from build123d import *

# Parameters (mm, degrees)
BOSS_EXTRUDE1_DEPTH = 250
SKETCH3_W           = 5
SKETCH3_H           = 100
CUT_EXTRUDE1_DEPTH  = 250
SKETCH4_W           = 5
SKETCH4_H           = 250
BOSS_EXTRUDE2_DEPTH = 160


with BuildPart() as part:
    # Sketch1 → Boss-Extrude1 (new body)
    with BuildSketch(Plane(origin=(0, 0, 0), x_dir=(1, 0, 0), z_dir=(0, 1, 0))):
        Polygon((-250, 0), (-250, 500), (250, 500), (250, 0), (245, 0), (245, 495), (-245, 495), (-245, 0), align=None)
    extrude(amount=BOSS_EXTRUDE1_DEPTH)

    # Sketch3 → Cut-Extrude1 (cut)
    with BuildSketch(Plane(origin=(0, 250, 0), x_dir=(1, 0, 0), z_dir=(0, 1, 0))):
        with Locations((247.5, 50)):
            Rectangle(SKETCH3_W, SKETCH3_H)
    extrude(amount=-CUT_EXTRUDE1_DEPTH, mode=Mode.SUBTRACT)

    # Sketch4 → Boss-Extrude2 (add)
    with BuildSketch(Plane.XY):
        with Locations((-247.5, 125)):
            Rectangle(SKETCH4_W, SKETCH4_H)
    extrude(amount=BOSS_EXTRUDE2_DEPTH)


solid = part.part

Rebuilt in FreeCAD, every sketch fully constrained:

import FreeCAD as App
import Part
import Sketcher
from FreeCAD import Vector
Q = App.Units.Quantity

doc = App.newDocument("Part")
params = doc.addObject("Spreadsheet::Sheet", "Params")
for row, (alias, value) in enumerate([
    ("sketch1_width", "5 mm"),
    ("sketch1_width2", "490 mm"),
    ("sketch1_height", "495 mm"),
    ("pad1_length", "250 mm"),
    ("sketch2_width", "5 mm"),
    ("sketch2_height", "100 mm"),
    ("pocket1_length", "250 mm"),
    ("sketch3_width", "5 mm"),
    ("sketch3_height", "250 mm"),
    ("pad2_length", "160 mm"),
], start=1):
    params.set(f"A{row}", alias)
    params.set(f"B{row}", "=" + value)
    params.setAlias(f"B{row}", alias)

body = doc.addObject("PartDesign::Body", "Body")

sketch1 = doc.addObject("Sketcher::SketchObject", "Sketch")
body.addObject(sketch1)
sketch1.AttachmentSupport = (doc.XZ_Plane, [""])
sketch1.MapMode = "FlatFace"
sketch1.addGeometry([
    Part.LineSegment(Vector(-250, -500, 0), Vector(-250, 0, 0)),
    Part.LineSegment(Vector(-250, 0, 0), Vector(-245, 0, 0)),
    Part.LineSegment(Vector(-245, 0, 0), Vector(-245, -495, 0)),
    Part.LineSegment(Vector(-245, -495, 0), Vector(245, -495, 0)),
    Part.LineSegment(Vector(245, -495, 0), Vector(245, 0, 0)),
    Part.LineSegment(Vector(245, 0, 0), Vector(250, 0, 0)),
    Part.LineSegment(Vector(250, 0, 0), Vector(250, -500, 0)),
    Part.LineSegment(Vector(250, -500, 0), Vector(-250, -500, 0)),
], False)
sketch1.addConstraint([
    Sketcher.Constraint("Coincident", 0, 2, 1, 1),
    Sketcher.Constraint("Coincident", 1, 2, 2, 1),
    Sketcher.Constraint("Coincident", 2, 2, 3, 1),
    Sketcher.Constraint("Coincident", 3, 2, 4, 1),
    Sketcher.Constraint("Coincident", 4, 2, 5, 1),
    Sketcher.Constraint("Coincident", 5, 2, 6, 1),
    Sketcher.Constraint("Coincident", 6, 2, 7, 1),
    Sketcher.Constraint("Coincident", 7, 2, 0, 1),
    Sketcher.Constraint("Vertical", 0),
    Sketcher.Constraint("Horizontal", 1),
    Sketcher.Constraint("Vertical", 2),
    Sketcher.Constraint("Horizontal", 3),
    Sketcher.Constraint("Vertical", 4),
    Sketcher.Constraint("Horizontal", 5),
    Sketcher.Constraint("Vertical", 6),
    Sketcher.Constraint("Horizontal", 7),
    Sketcher.Constraint("Symmetric", 1, 2, 4, 2, -1, 1),
    Sketcher.Constraint("Symmetric", 0, 2, 5, 2, -2),
    Sketcher.Constraint("Equal", 7, 0),
    Sketcher.Constraint("DistanceX", 1, 1, 1, 2, Q("5 mm")),
    Sketcher.Constraint("DistanceX", 3, 1, 3, 2, Q("490 mm")),
    Sketcher.Constraint("DistanceY", 2, 2, 2, 1, Q("495 mm")),
])
sketch1.setExpression("Constraints[19]", "Params.sketch1_width")
sketch1.setExpression("Constraints[20]", "Params.sketch1_width2")
sketch1.setExpression("Constraints[21]", "Params.sketch1_height")
pad1 = doc.addObject("PartDesign::Pad", "Pad")
body.addObject(pad1)
pad1.Profile = sketch1
pad1.setExpression("Length", "Params.pad1_length")
pad1.Reversed = True

sketch2 = doc.addObject("Sketcher::SketchObject", "Sketch001")
body.addObject(sketch2)
sketch2.AttachmentSupport = (doc.XZ_Plane, [""])
sketch2.MapMode = "FlatFace"
sketch2.AttachmentOffset = App.Placement(Vector(0, 0, -250), App.Rotation())
sketch2.addGeometry([
    Part.LineSegment(Vector(245, -100, 0), Vector(245, 0, 0)),
    Part.LineSegment(Vector(245, 0, 0), Vector(250, 0, 0)),
    Part.LineSegment(Vector(250, 0, 0), Vector(250, -100, 0)),
    Part.LineSegment(Vector(250, -100, 0), Vector(245, -100, 0)),
], False)
sketch2.addConstraint([
    Sketcher.Constraint("Coincident", 0, 2, 1, 1),
    Sketcher.Constraint("Coincident", 1, 2, 2, 1),
    Sketcher.Constraint("Coincident", 2, 2, 3, 1),
    Sketcher.Constraint("Coincident", 3, 2, 0, 1),
    Sketcher.Constraint("Vertical", 0),
    Sketcher.Constraint("Horizontal", 1),
    Sketcher.Constraint("Vertical", 2),
    Sketcher.Constraint("Horizontal", 3),
    Sketcher.Constraint("PointOnObject", 0, 2, -1),
    Sketcher.Constraint("DistanceX", 1, 1, 1, 2, Q("5 mm")),
    Sketcher.Constraint("DistanceY", 0, 1, 0, 2, Q("100 mm")),
    Sketcher.Constraint("DistanceX", -1, 1, 0, 2, Q("245 mm")),
])
sketch2.setExpression("Constraints[9]", "Params.sketch2_width")
sketch2.setExpression("Constraints[10]", "Params.sketch2_height")
pocket1 = doc.addObject("PartDesign::Pocket", "Pocket")
body.addObject(pocket1)
pocket1.Profile = sketch2
pocket1.setExpression("Length", "Params.pocket1_length")
pocket1.Reversed = True

sketch3 = doc.addObject("Sketcher::SketchObject", "Sketch002")
body.addObject(sketch3)
sketch3.AttachmentSupport = (doc.XY_Plane, [""])
sketch3.MapMode = "FlatFace"
sketch3.addGeometry([
    Part.LineSegment(Vector(-250, 250, 0), Vector(-250, 0, 0)),
    Part.LineSegment(Vector(-250, 0, 0), Vector(-245, 0, 0)),
    Part.LineSegment(Vector(-245, 0, 0), Vector(-245, 250, 0)),
    Part.LineSegment(Vector(-245, 250, 0), Vector(-250, 250, 0)),
], False)
sketch3.addConstraint([
    Sketcher.Constraint("Coincident", 0, 2, 1, 1),
    Sketcher.Constraint("Coincident", 1, 2, 2, 1),
    Sketcher.Constraint("Coincident", 2, 2, 3, 1),
    Sketcher.Constraint("Coincident", 3, 2, 0, 1),
    Sketcher.Constraint("Vertical", 0),
    Sketcher.Constraint("Horizontal", 1),
    Sketcher.Constraint("Vertical", 2),
    Sketcher.Constraint("Horizontal", 3),
    Sketcher.Constraint("PointOnObject", 0, 2, -1),
    Sketcher.Constraint("DistanceX", 1, 1, 1, 2, Q("5 mm")),
    Sketcher.Constraint("DistanceY", 0, 2, 0, 1, Q("250 mm")),
    Sketcher.Constraint("DistanceX", 0, 2, -1, 1, Q("250 mm")),
])
sketch3.setExpression("Constraints[9]", "Params.sketch3_width")
sketch3.setExpression("Constraints[10]", "Params.sketch3_height")
pad2 = doc.addObject("PartDesign::Pad", "Pad001")
body.addObject(pad2)
pad2.Profile = sketch3
pad2.setExpression("Length", "Params.pad2_length")

doc.recompute()
